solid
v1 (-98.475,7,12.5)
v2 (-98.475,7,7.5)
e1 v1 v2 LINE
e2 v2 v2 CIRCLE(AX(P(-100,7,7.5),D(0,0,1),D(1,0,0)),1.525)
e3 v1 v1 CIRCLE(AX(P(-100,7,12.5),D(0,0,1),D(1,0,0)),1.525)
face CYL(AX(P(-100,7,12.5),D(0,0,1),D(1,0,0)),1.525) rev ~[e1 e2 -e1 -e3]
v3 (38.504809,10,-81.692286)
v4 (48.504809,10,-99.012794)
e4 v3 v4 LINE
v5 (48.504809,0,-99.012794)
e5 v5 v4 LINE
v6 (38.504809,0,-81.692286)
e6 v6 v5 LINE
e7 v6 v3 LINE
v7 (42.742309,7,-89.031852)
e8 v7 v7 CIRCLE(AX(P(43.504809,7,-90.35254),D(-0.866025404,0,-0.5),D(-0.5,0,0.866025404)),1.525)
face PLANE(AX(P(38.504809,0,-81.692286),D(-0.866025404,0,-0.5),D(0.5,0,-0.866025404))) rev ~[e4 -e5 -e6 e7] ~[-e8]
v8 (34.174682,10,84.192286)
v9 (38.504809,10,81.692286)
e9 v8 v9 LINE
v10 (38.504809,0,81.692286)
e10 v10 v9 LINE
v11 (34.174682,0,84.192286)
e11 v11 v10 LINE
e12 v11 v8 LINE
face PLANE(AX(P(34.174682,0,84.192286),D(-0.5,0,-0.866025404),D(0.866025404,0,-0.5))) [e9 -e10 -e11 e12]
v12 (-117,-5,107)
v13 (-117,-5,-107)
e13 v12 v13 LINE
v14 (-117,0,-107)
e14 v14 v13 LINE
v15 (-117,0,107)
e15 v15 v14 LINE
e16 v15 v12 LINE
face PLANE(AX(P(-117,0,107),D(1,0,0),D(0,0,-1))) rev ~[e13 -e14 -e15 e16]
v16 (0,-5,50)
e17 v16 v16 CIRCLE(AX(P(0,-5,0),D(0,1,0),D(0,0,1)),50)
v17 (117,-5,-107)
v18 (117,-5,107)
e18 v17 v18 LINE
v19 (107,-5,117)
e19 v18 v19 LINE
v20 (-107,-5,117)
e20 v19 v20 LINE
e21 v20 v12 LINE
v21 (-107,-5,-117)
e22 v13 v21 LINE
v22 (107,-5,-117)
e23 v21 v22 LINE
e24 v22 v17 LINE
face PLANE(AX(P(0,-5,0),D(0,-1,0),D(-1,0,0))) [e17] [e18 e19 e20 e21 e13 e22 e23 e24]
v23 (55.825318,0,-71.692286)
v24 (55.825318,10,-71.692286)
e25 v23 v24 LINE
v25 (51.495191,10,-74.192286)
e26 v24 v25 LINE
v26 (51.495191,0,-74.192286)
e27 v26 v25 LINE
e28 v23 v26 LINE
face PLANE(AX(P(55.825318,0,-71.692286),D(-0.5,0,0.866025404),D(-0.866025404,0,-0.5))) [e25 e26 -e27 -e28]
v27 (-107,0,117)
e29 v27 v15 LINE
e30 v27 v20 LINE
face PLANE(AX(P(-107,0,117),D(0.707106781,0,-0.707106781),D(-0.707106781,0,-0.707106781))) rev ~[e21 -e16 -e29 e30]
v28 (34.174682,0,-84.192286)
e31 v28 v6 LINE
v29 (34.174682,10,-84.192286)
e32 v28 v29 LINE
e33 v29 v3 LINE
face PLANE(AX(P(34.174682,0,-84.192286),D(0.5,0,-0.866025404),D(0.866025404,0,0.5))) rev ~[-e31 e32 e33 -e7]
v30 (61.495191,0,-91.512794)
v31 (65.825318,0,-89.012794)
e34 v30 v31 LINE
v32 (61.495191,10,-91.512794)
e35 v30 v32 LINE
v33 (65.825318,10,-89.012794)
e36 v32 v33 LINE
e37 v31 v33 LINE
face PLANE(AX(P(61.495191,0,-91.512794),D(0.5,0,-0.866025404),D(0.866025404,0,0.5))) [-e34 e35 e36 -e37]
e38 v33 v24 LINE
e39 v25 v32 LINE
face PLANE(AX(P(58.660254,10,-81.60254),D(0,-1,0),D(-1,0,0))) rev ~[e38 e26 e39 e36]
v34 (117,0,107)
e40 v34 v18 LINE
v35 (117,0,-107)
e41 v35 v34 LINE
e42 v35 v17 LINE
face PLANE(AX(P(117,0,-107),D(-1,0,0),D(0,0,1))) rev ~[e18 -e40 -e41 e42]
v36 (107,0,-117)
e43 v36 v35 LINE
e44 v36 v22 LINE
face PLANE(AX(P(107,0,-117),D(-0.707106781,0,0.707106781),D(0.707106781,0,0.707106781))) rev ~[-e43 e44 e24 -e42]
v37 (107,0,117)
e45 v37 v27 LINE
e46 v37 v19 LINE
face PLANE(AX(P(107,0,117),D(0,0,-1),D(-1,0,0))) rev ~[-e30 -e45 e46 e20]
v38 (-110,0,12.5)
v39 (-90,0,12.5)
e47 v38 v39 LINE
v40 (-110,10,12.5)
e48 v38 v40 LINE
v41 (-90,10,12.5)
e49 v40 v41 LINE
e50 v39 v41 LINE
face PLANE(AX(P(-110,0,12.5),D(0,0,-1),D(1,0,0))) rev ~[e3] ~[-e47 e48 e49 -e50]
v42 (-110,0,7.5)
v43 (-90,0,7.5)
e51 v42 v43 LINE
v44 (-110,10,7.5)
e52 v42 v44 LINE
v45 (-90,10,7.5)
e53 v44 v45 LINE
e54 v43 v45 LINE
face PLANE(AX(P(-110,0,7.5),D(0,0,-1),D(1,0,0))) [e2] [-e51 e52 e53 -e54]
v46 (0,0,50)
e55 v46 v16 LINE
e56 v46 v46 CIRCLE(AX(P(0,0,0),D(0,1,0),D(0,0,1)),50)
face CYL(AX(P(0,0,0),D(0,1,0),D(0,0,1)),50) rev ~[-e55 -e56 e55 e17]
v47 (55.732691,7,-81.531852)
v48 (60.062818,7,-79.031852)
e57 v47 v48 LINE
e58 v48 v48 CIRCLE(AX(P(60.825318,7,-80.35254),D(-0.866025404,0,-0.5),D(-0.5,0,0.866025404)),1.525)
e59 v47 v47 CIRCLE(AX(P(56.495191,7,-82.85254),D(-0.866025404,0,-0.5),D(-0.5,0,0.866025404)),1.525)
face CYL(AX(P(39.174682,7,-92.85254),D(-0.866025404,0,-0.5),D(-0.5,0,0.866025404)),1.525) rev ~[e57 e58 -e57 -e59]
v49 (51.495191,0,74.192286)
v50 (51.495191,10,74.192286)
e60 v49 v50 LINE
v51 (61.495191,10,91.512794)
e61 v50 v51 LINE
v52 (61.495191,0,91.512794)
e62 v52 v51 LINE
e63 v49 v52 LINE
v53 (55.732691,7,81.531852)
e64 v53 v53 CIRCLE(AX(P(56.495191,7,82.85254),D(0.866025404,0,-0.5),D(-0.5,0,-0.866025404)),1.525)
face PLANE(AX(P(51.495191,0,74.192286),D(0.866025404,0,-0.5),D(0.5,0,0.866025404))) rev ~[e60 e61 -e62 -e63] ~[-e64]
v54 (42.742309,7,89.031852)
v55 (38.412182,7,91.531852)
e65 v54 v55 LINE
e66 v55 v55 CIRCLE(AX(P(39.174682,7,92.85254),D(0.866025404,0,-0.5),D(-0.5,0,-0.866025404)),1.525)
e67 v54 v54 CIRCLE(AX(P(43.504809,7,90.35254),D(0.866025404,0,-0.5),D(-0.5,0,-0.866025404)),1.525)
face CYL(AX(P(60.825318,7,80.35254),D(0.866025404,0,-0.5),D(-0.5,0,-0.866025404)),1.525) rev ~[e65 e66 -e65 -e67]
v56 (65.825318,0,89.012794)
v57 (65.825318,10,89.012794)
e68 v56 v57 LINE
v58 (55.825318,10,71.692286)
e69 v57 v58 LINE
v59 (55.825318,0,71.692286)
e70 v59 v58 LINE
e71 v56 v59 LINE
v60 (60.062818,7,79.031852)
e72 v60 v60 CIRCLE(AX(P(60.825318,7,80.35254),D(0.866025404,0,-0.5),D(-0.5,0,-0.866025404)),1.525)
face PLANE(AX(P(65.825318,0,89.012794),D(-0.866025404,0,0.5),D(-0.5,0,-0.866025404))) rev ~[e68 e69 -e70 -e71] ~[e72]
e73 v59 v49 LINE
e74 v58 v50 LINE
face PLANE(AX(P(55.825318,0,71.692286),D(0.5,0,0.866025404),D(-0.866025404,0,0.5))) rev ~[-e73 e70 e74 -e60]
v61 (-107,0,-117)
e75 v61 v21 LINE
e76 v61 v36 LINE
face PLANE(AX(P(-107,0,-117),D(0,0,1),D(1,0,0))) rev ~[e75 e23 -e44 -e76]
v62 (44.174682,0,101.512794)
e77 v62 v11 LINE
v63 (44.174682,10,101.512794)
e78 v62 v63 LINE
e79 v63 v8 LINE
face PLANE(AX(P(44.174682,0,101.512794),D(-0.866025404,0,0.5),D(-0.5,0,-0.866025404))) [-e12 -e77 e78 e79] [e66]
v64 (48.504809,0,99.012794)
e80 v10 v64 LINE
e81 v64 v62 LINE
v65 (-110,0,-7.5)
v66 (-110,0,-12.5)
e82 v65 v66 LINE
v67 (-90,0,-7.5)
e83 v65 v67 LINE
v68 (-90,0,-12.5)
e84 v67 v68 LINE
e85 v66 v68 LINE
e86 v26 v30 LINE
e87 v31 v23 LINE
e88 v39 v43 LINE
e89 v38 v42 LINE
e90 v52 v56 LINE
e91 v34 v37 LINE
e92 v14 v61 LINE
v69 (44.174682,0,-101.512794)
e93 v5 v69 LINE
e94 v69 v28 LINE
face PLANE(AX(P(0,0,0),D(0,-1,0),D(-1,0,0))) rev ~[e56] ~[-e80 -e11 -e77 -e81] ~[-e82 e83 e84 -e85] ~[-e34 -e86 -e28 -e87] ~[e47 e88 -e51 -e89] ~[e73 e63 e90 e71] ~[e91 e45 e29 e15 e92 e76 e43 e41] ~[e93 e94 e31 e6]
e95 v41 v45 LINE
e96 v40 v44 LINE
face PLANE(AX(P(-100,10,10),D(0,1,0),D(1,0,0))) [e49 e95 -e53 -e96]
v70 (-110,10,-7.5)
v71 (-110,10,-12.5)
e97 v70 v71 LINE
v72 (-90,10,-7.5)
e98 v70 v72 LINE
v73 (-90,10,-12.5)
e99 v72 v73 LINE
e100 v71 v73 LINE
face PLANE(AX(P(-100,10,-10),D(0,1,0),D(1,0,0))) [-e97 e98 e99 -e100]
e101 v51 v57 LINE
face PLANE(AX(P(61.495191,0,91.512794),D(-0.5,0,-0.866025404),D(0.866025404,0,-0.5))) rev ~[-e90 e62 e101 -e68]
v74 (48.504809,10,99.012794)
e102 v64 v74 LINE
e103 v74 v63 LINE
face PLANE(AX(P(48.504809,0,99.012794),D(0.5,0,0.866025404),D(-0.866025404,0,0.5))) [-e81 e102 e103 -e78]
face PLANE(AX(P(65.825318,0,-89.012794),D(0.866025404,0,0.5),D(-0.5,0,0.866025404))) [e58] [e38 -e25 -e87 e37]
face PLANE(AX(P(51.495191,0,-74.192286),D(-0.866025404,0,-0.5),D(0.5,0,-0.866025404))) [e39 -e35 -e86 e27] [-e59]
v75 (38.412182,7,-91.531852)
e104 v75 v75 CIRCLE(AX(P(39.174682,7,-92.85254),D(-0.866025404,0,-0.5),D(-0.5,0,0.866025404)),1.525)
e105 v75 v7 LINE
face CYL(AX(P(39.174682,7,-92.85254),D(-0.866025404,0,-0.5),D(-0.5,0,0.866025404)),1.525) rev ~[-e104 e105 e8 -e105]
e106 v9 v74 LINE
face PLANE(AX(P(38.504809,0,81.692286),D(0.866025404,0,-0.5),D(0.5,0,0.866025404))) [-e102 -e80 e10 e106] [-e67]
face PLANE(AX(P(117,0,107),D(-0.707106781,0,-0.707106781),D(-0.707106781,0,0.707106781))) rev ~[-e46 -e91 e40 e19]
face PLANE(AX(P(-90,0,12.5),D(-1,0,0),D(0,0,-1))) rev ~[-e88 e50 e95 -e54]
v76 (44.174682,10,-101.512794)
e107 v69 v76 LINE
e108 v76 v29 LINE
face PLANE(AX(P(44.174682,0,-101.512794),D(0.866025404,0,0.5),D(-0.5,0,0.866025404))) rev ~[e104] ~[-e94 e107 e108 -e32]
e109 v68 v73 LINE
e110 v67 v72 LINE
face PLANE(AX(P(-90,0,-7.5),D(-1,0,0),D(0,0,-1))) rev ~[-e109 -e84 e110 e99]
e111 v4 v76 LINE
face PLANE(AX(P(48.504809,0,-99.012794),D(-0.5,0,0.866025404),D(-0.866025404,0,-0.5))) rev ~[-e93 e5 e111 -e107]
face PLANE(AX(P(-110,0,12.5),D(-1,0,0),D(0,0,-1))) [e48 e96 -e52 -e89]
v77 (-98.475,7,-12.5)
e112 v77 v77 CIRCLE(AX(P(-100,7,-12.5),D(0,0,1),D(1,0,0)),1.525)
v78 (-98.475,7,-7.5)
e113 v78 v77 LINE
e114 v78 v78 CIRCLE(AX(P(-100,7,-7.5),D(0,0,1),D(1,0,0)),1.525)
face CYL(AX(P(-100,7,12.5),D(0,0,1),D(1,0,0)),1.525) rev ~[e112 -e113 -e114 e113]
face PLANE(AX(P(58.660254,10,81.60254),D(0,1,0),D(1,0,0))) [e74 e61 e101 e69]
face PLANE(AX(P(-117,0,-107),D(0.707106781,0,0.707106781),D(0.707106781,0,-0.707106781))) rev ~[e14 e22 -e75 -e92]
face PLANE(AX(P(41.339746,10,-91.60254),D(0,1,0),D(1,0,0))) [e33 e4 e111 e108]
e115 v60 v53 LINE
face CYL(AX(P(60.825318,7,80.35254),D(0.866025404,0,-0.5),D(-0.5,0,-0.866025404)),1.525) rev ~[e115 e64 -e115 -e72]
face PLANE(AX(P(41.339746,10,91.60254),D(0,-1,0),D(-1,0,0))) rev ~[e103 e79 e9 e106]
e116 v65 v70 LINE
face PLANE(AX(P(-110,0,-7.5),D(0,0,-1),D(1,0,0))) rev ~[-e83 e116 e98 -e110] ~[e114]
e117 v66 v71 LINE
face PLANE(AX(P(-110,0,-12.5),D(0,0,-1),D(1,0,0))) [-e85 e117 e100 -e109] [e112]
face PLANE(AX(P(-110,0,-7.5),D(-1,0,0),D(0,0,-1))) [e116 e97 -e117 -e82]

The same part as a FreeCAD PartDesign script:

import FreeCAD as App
import Part
import Sketcher
from FreeCAD import Vector
Q = App.Units.Quantity


def add_polygon(sketch, points):
    """Adds a closed chain of lines whose ends are joined by coincident constraints."""
    first, n = sketch.GeometryCount, len(points)
    for a, b in zip(points, points[1:] + points[:1]):
        sketch.addGeometry(Part.LineSegment(App.Vector(*a, 0), App.Vector(*b, 0)), False)
    for i in range(n):
        sketch.addConstraint(Sketcher.Constraint("Coincident", first + i, 2, first + (i + 1) % n, 1))

doc = App.newDocument("Part")
body = doc.addObject("PartDesign::Body", "Body")

# Sketch on XZ plane
sketch1 = doc.addObject("Sketcher::SketchObject", "Sketch")
body.addObject(sketch1)
sketch1.AttachmentSupport = (doc.XZ_Plane, [""])
sketch1.MapMode = "FlatFace"
add_polygon(sketch1, [(44.174682, -101.512794), (34.174682, -84.192286), (38.504809, -81.692286), (48.504809, -99.012794)])  # lines 0-3
sketch1.addConstraint([
    Sketcher.Constraint("Perpendicular", 0, 1),
    Sketcher.Constraint("Perpendicular", 1, 2),
    Sketcher.Constraint("Perpendicular", 2, 3),
    Sketcher.Constraint("Angle", 0, Q("120 deg")),
    Sketcher.Constraint("Distance", 0, Q("20 mm")),
    Sketcher.Constraint("Distance", 1, Q("5 mm")),
    Sketcher.Constraint("DistanceX", -1, 1, 1, 2, Q("38.504809 mm")),
    Sketcher.Constraint("DistanceY", 0, 2, -1, 1, Q("84.192286 mm")),
])
pad1 = doc.addObject("PartDesign::Pad", "Pad")
body.addObject(pad1)
pad1.Profile = sketch1
pad1.Length = 10
pad1.Reversed = True
body2 = doc.addObject("PartDesign::Body", "Body001")

# Sketch on XZ plane
sketch2 = doc.addObject("Sketcher::SketchObject", "Sketch001")
body2.addObject(sketch2)
sketch2.AttachmentSupport = (doc.getObject("XZ_Plane001"), [""])
sketch2.MapMode = "FlatFace"
add_polygon(sketch2, [(65.825318, -89.012794), (61.495191, -91.512794), (51.495191, -74.192286), (55.825318, -71.692286)])  # lines 0-3
sketch2.addConstraint([
    Sketcher.Constraint("Perpendicular", 0, 1),
    Sketcher.Constraint("Perpendicular", 1, 2),
    Sketcher.Constraint("Perpendicular", 2, 3),
    Sketcher.Constraint("Angle", 0, Q("-150 deg")),
    Sketcher.Constraint("Distance", 0, Q("5 mm")),
    Sketcher.Constraint("Distance", 1, Q("20 mm")),
    Sketcher.Constraint("DistanceX", -1, 1, 0, 2, Q("61.495191 mm")),
    Sketcher.Constraint("DistanceY", 0, 2, -1, 1, Q("91.512794 mm")),
])
pad2 = doc.addObject("PartDesign::Pad", "Pad001")
body2.addObject(pad2)
pad2.Profile = sketch2
pad2.Length = 10
pad2.Reversed = True
body3 = doc.addObject("PartDesign::Body", "Body002")

# Sketch on XZ plane
sketch3 = doc.addObject("Sketcher::SketchObject", "Sketch002")
body3.addObject(sketch3)
sketch3.AttachmentSupport = (doc.getObject("XZ_Plane002"), [""])
sketch3.MapMode = "FlatFace"
add_polygon(sketch3, [(65.825318, 89.012794), (55.825318, 71.692286), (51.495191, 74.192286), (61.495191, 91.512794)])  # lines 0-3
sketch3.addConstraint([
    Sketcher.Constraint("Perpendicular", 0, 1),
    Sketcher.Constraint("Perpendicular", 1, 2),
    Sketcher.Constraint("Perpendicular", 2, 3),
    Sketcher.Constraint("Angle", 0, Q("-120 deg")),
    Sketcher.Constraint("Distance", 0, Q("20 mm")),
    Sketcher.Constraint("Distance", 1, Q("5 mm")),
    Sketcher.Constraint("DistanceX", -1, 1, 1, 2, Q("51.495191 mm")),
    Sketcher.Constraint("DistanceY", -1, 1, 0, 2, Q("71.692286 mm")),
])
pad3 = doc.addObject("PartDesign::Pad", "Pad002")
body3.addObject(pad3)
pad3.Profile = sketch3
pad3.Length = 10
pad3.Reversed = True
body4 = doc.addObject("PartDesign::Body", "Body003")

# Sketch on XZ plane
sketch4 = doc.addObject("Sketcher::SketchObject", "Sketch003")
body4.addObject(sketch4)
sketch4.AttachmentSupport = (doc.getObject("XZ_Plane003"), [""])
sketch4.MapMode = "FlatFace"
add_polygon(sketch4, [(44.174682, 101.512794), (48.504809, 99.012794), (38.504809, 81.692286), (34.174682, 84.192286)])  # lines 0-3
sketch4.addConstraint([
    Sketcher.Constraint("Perpendicular", 0, 1),
    Sketcher.Constraint("Perpendicular", 1, 2),
    Sketcher.Constraint("Perpendicular", 2, 3),
    Sketcher.Constraint("Angle", 0, Q("-30 deg")),
    Sketcher.Constraint("Distance", 0, Q("5 mm")),
    Sketcher.Constraint("Distance", 1, Q("20 mm")),
    Sketcher.Constraint("DistanceX", -1, 1, 0, 2, Q("48.504809 mm")),
    Sketcher.Constraint("DistanceY", -1, 1, 0, 2, Q("99.012794 mm")),
])
pad4 = doc.addObject("PartDesign::Pad", "Pad003")
body4.addObject(pad4)
pad4.Profile = sketch4
pad4.Length = 10
pad4.Reversed = True
body5 = doc.addObject("PartDesign::Body", "Body004")

# Sketch on XZ plane
sketch5 = doc.addObject("Sketcher::SketchObject", "Sketch004")
body5.addObject(sketch5)
sketch5.AttachmentSupport = (doc.getObject("XZ_Plane004"), [""])
sketch5.MapMode = "FlatFace"
add_polygon(sketch5, [(-110, 7.5), (-110, 12.5), (-90, 12.5), (-90, 7.5)])  # lines 0-3
sketch5.addConstraint([
    Sketcher.Constraint("Vertical", 0),
    Sketcher.Constraint("Horizontal", 1),
    Sketcher.Constraint("Vertical", 2),
    Sketcher.Constraint("Horizontal", 3),
    Sketcher.Constraint("DistanceX", 1, 1, 1, 2, Q("20 mm")),
    Sketcher.Constraint("DistanceY", 0, 1, 0, 2, Q("5 mm")),
    Sketcher.Constraint("DistanceX", 0, 2, -1, 1, Q("110 mm")),
    Sketcher.Constraint("DistanceY", -1, 1, 0, 2, Q("12.5 mm")),
])
pad5 = doc.addObject("PartDesign::Pad", "Pad004")
body5.addObject(pad5)
pad5.Profile = sketch5
pad5.Length = 10
pad5.Reversed = True
body6 = doc.addObject("PartDesign::Body", "Body005")

# Sketch on XZ plane
sketch6 = doc.addObject("Sketcher::SketchObject", "Sketch005")
body6.addObject(sketch6)
sketch6.AttachmentSupport = (doc.getObject("XZ_Plane005"), [""])
sketch6.MapMode = "FlatFace"
add_polygon(sketch6, [(-110, -12.5), (-110, -7.5), (-90, -7.5), (-90, -12.5)])  # lines 0-3
sketch6.addConstraint([
    Sketcher.Constraint("Vertical", 0),
    Sketcher.Constraint("Horizontal", 1),
    Sketcher.Constraint("Vertical", 2),
    Sketcher.Constraint("Horizontal", 3),
    Sketcher.Constraint("DistanceX", 1, 1, 1, 2, Q("20 mm")),
    Sketcher.Constraint("DistanceY", 0, 1, 0, 2, Q("5 mm")),
    Sketcher.Constraint("DistanceX", 0, 2, -1, 1, Q("110 mm")),
    Sketcher.Constraint("DistanceY", 0, 2, -1, 1, Q("7.5 mm")),
])
pad6 = doc.addObject("PartDesign::Pad", "Pad005")
body6.addObject(pad6)
pad6.Profile = sketch6
pad6.Length = 10
pad6.Reversed = True
body.AllowCompound = True
doc.recompute()

boolean = doc.addObject("PartDesign::Boolean", "Boolean")
body.addObject(boolean)
boolean.Type = "Fuse"
boolean.addObjects([body2])
doc.recompute()

boolean2 = doc.addObject("PartDesign::Boolean", "Boolean001")
body.addObject(boolean2)
boolean2.Type = "Fuse"
boolean2.addObjects([body3])
doc.recompute()

boolean3 = doc.addObject("PartDesign::Boolean", "Boolean002")
body.addObject(boolean3)
boolean3.Type = "Fuse"
boolean3.addObjects([body4])
doc.recompute()

boolean4 = doc.addObject("PartDesign::Boolean", "Boolean003")
body.addObject(boolean4)
boolean4.Type = "Fuse"
boolean4.addObjects([body5])
doc.recompute()

boolean5 = doc.addObject("PartDesign::Boolean", "Boolean004")
body.addObject(boolean5)
boolean5.Type = "Fuse"
boolean5.addObjects([body6])

# Sketch on XZ plane
sketch7 = doc.addObject("Sketcher::SketchObject", "Sketch006")
body.addObject(sketch7)
sketch7.AttachmentSupport = (doc.XZ_Plane, [""])
sketch7.MapMode = "FlatFace"
add_polygon(sketch7, [(-107, -117), (-117, -107), (-117, 107), (-107, 117), (107, 117), (117, 107), (117, -107), (107, -117)])  # lines 0-7
sketch7.addGeometry(Part.Circle(Vector(0, 0, 0), Vector(0, 0, 1), 50), False)  # 8
sketch7.addConstraint([
    Sketcher.Constraint("Vertical", 1),
    Sketcher.Constraint("Horizontal", 3),
    Sketcher.Constraint("Vertical", 5),
    Sketcher.Constraint("Horizontal", 7),
    Sketcher.Constraint("Coincident", 8, 3, -1, 1),
    Sketcher.Constraint("Symmetric", 0, 2, 4, 2, -1, 1),
    Sketcher.Constraint("Symmetric", 2, 2, 6, 2, -1, 1),
    Sketcher.Constraint("Perpendicular", 0, 2),
    Sketcher.Constraint("Perpendicular", 2, 4),
    Sketcher.Constraint("Perpendicular", 4, 6),
    Sketcher.Constraint("Horizontal", 1, 2, 4, 2),
    Sketcher.Constraint("Vertical", 3, 2, 6, 2),
    Sketcher.Constraint("Equal", 7, 1),
    Sketcher.Constraint("Diameter", 8, Q("100 mm")),
    Sketcher.Constraint("DistanceX", 3, 1, 3, 2, Q("214 mm")),
    Sketcher.Constraint("DistanceX", 0, 2, -1, 1, Q("117 mm")),
])
pad7 = doc.addObject("PartDesign::Pad", "Pad006")
body.addObject(pad7)
pad7.Profile = sketch7
pad7.Length = 5

# Sketch on XY plane
sketch8 = doc.addObject("Sketcher::SketchObject", "Sketch007")
body.addObject(sketch8)
sketch8.AttachmentSupport = (doc.XY_Plane, [""])
sketch8.MapMode = "FlatFace"
sketch8.AttachmentOffset = App.Placement(Vector(0, 0, 12.5), App.Rotation())
sketch8.addGeometry(Part.Circle(Vector(-100, 7, 0), Vector(0, 0, 1), 1.525), False)
sketch8.addConstraint([
    Sketcher.Constraint("Diameter", 0, Q("3.05 mm")),
    Sketcher.Constraint("DistanceX", 0, 3, -1, 1, Q("100 mm")),
    Sketcher.Constraint("DistanceY", -1, 1, 0, 3, Q("7 mm")),
])
pocket1 = doc.addObject("PartDesign::Pocket", "Pocket")
body.addObject(pocket1)
pocket1.Profile = sketch8
pocket1.Length = 30

# Sketch on an angled plane
sketch9 = doc.addObject("Sketcher::SketchObject", "Sketch008")
body.addObject(sketch9)
sketch9.Placement = App.Placement(Vector(10.825318, 0, -6.25), App.Rotation(Vector(-0.5, 0, -0.866025404), Vector(0, 1, 0), Vector(0.866025404, 0, -0.5), "ZXY"))
sketch9.addGeometry(Part.Circle(Vector(-100, 7, 0), Vector(0, 0, 1), 1.525), False)
sketch9.addConstraint([
    Sketcher.Constraint("Diameter", 0, Q("3.05 mm")),
    Sketcher.Constraint("DistanceX", 0, 3, -1, 1, Q("100 mm")),
    Sketcher.Constraint("DistanceY", -1, 1, 0, 3, Q("7 mm")),
])
pocket2 = doc.addObject("PartDesign::Pocket", "Pocket001")
body.addObject(pocket2)
pocket2.Profile = sketch9
pocket2.Length = 30

# Sketch on an angled plane
sketch10 = doc.addObject("Sketcher::SketchObject", "Sketch009")
body.addObject(sketch10)
sketch10.Placement = App.Placement(Vector(-10.825318, 0, -6.25), App.Rotation(Vector(-0.5, 0, 0.866025404), Vector(0, 1, 0), Vector(-0.866025404, 0, -0.5), "ZXY"))
sketch10.addGeometry(Part.Circle(Vector(-100, 7, 0), Vector(0, 0, 1), 1.525), False)
sketch10.addConstraint([
    Sketcher.Constraint("Diameter", 0, Q("3.05 mm")),
    Sketcher.Constraint("DistanceX", 0, 3, -1, 1, Q("100 mm")),
    Sketcher.Constraint("DistanceY", -1, 1, 0, 3, Q("7 mm")),
])
pocket3 = doc.addObject("PartDesign::Pocket", "Pocket002")
body.addObject(pocket3)
pocket3.Profile = sketch10
pocket3.Length = 30

doc.recompute()
